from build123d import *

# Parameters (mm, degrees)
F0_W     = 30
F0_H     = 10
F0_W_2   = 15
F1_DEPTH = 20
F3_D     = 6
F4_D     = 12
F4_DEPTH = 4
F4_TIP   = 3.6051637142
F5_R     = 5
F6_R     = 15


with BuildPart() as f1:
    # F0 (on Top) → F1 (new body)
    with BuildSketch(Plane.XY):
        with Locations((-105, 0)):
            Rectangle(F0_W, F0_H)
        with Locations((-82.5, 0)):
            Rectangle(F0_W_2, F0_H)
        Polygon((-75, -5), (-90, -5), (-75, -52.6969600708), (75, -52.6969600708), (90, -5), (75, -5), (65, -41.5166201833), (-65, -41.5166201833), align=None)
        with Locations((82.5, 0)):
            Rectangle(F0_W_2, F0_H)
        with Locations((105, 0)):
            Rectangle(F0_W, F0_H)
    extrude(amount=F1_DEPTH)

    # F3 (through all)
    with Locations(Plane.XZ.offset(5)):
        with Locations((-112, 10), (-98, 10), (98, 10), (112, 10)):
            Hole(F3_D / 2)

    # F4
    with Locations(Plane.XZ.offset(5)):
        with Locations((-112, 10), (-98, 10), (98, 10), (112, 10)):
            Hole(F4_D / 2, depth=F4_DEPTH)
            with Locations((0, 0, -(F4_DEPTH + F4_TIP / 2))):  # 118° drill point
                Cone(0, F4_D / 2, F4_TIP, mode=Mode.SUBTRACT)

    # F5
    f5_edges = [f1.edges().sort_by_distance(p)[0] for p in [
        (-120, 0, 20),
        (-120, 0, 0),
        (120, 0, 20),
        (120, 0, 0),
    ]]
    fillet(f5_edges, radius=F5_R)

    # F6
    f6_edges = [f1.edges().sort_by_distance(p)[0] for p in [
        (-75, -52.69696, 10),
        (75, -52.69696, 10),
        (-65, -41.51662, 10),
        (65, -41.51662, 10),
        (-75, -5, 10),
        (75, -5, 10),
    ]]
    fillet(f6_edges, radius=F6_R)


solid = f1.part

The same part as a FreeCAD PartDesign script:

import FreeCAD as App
import Part
import Sketcher
from FreeCAD import Vector


def edges_at(feature, points):
    """Names of the edges that pass closest to the given points."""
    edges = feature.Shape.Edges
    near = lambda p: min(range(len(edges)), key=lambda i: edges[i].distToShape(Part.Vertex(*p))[0])
    return sorted({f"Edge{near(p) + 1}" for p in points})

doc = App.newDocument("Part")
body = doc.addObject("PartDesign::Body", "Body")

sketch1 = body.newObject("Sketcher::SketchObject", "Sketch")
sketch1.AttachmentSupport = (doc.getObject("XY_Plane"), [""])
sketch1.MapMode = "FlatFace"
sketch1.addGeometry([
    Part.LineSegment(Vector(-120, 5, 0), Vector(-120, -5, 0)),
    Part.LineSegment(Vector(-120, -5, 0), Vector(-90, -5, 0)),
    Part.LineSegment(Vector(-90, -5, 0), Vector(-75, -53, 0)),
    Part.LineSegment(Vector(-75, -53, 0), Vector(75, -53, 0)),
    Part.LineSegment(Vector(75, -53, 0), Vector(90, -5, 0)),
    Part.LineSegment(Vector(90, -5, 0), Vector(120, -5, 0)),
    Part.LineSegment(Vector(120, -5, 0), Vector(120, 5, 0)),
    Part.LineSegment(Vector(120, 5, 0), Vector(75, 5, 0)),
    Part.LineSegment(Vector(75, 5, 0), Vector(75, -5, 0)),
    Part.LineSegment(Vector(75, -5, 0), Vector(65, -42, 0)),
    Part.LineSegment(Vector(65, -42, 0), Vector(-65, -42, 0)),
    Part.LineSegment(Vector(-65, -42, 0), Vector(-75, -5, 0)),
    Part.LineSegment(Vector(-75, -5, 0), Vector(-75, 5, 0)),
    Part.LineSegment(Vector(-75, 5, 0), Vector(-120, 5, 0)),
], False)
sketch1.addConstraint([
    Sketcher.Constraint("Coincident", 0, 2, 1, 1),
    Sketcher.Constraint("Coincident", 1, 2, 2, 1),
    Sketcher.Constraint("Coincident", 2, 2, 3, 1),
    Sketcher.Constraint("Coincident", 3, 2, 4, 1),
    Sketcher.Constraint("Coincident", 4, 2, 5, 1),
    Sketcher.Constraint("Coincident", 5, 2, 6, 1),
    Sketcher.Constraint("Coincident", 6, 2, 7, 1),
    Sketcher.Constraint("Coincident", 7, 2, 8, 1),
    Sketcher.Constraint("Coincident", 8, 2, 9, 1),
    Sketcher.Constraint("Coincident", 9, 2, 10, 1),
    Sketcher.Constraint("Coincident", 10, 2, 11, 1),
    Sketcher.Constraint("Coincident", 11, 2, 12, 1),
    Sketcher.Constraint("Coincident", 12, 2, 13, 1),
    Sketcher.Constraint("Coincident", 13, 2, 0, 1),
    Sketcher.Constraint("Vertical", 0),
    Sketcher.Constraint("Horizontal", 1),
    Sketcher.Constraint("Horizontal", 3),
    Sketcher.Constraint("Horizontal", 5),
    Sketcher.Constraint("Vertical", 6),
    Sketcher.Constraint("Horizontal", 7),
    Sketcher.Constraint("Vertical", 8),
    Sketcher.Constraint("Horizontal", 10),
    Sketcher.Constraint("Vertical", 12),
    Sketcher.Constraint("Horizontal", 13),
    Sketcher.Constraint("Symmetric", 0, 2, 6, 2, -1, 1),
    Sketcher.Constraint("Symmetric", 7, 2, 11, 2, -1, 1),
    Sketcher.Constraint("Symmetric", 1, 2, 4, 2, -2),
    Sketcher.Constraint("Horizontal", 5, 2, 8, 2),
    Sketcher.Constraint("Horizontal", 7, 2, 12, 2),
    Sketcher.Constraint("Vertical", 3, 2, 7, 2),
    Sketcher.Constraint("Vertical", 2, 2, 11, 2),
    Sketcher.Constraint("Equal", 9, 11),
    Sketcher.Constraint("DistanceX", 1, 1, 1, 2, 30.0),
    Sketcher.Constraint("DistanceX", 3, 1, 3, 2, 150.0),
    Sketcher.Constraint("DistanceX", 7, 2, 7, 1, 45.0),
    Sketcher.Constraint("DistanceX", 10, 2, 10, 1, 130.0),
    Sketcher.Constraint("DistanceY", 0, 2, 0, 1, 10.0),
    Sketcher.Constraint("Distance", 2, 50.0),
    Sketcher.Constraint("Distance", 9, 37.861109),
])
pad1 = body.newObject("PartDesign::Pad", "Pad")
pad1.Profile = sketch1
pad1.Length = 20

sketch2 = body.newObject("Sketcher::SketchObject", "Sketch001")
sketch2.AttachmentSupport = (doc.getObject("XZ_Plane"), [""])
sketch2.MapMode = "FlatFace"
sketch2.AttachmentOffset = App.Placement(Vector(0, 0, 5), App.Rotation())
sketch2.addGeometry([
    Part.Circle(Vector(-112, 10, 0), Vector(0, 0, 1), 3),
    Part.Circle(Vector(-98, 10, 0), Vector(0, 0, 1), 3),
    Part.Circle(Vector(98, 10, 0), Vector(0, 0, 1), 3),
    Part.Circle(Vector(112, 10, 0), Vector(0, 0, 1), 3),
], False)
sketch2.addConstraint([
    Sketcher.Constraint("Equal", 0, 1),
    Sketcher.Constraint("Equal", 1, 2),
    Sketcher.Constraint("Equal", 2, 3),
    Sketcher.Constraint("Symmetric", 1, 3, 2, 3, -2),
    Sketcher.Constraint("Symmetric", 0, 3, 3, 3, -2),
    Sketcher.Constraint("Horizontal", 0, 3, 1, 3),
    Sketcher.Constraint("Diameter", 0, 6.0),
    Sketcher.Constraint("DistanceX", 0, 3, -1, 1, 112.0),
    Sketcher.Constraint("DistanceY", -1, 1, 0, 3, 10.0),
    Sketcher.Constraint("DistanceX", 1, 3, -1, 1, 98.0),
])
doc.recompute()
hole = body.newObject("PartDesign::Hole", "Hole")
hole.Profile = sketch2
hole.ThreadType = "None"
hole.Diameter = 6
hole.DepthType = "ThroughAll"

sketch3 = body.newObject("Sketcher::SketchObject", "Sketch002")
sketch3.AttachmentSupport = (doc.getObject("XZ_Plane"), [""])
sketch3.MapMode = "FlatFace"
sketch3.AttachmentOffset = App.Placement(Vector(0, 0, 5), App.Rotation())
sketch3.addGeometry([
    Part.Circle(Vector(-112, 10, 0), Vector(0, 0, 1), 6),
    Part.Circle(Vector(-98, 10, 0), Vector(0, 0, 1), 6),
    Part.Circle(Vector(98, 10, 0), Vector(0, 0, 1), 6),
    Part.Circle(Vector(112, 10, 0), Vector(0, 0, 1), 6),
], False)
sketch3.addConstraint([
    Sketcher.Constraint("Equal", 0, 1),
    Sketcher.Constraint("Equal", 1, 2),
    Sketcher.Constraint("Equal", 2, 3),
    Sketcher.Constraint("Symmetric", 1, 3, 2, 3, -2),
    Sketcher.Constraint("Symmetric", 0, 3, 3, 3, -2),
    Sketcher.Constraint("Horizontal", 0, 3, 1, 3),
    Sketcher.Constraint("Diameter", 0, 12.0),
    Sketcher.Constraint("DistanceX", 0, 3, -1, 1, 112.0),
    Sketcher.Constraint("DistanceY", -1, 1, 0, 3, 10.0),
    Sketcher.Constraint("DistanceX", 1, 3, -1, 1, 98.0),
])
doc.recompute()
hole2 = body.newObject("PartDesign::Hole", "Hole001")
hole2.Profile = sketch3
hole2.ThreadType = "None"
hole2.Diameter = 12
hole2.DepthType = "Dimension"
hole2.Depth = 4
hole2.DrillPoint = "Angled"
hole2.DrillPointAngle = 118
doc.recompute()

fillet = body.newObject("PartDesign::Fillet", "Fillet")
fillet.Base = (hole2, edges_at(hole2, [
    (-120, 0, 20),
    (-120, 0, 0),
    (120, 0, 20),
    (120, 0, 0),
]))
fillet.Radius = 5
doc.recompute()

fillet2 = body.newObject("PartDesign::Fillet", "Fillet001")
fillet2.Base = (fillet, edges_at(fillet, [
    (-75, -52.697, 10),
    (75, -52.697, 10),
    (-65, -41.517, 10),
    (65, -41.517, 10),
    (-75, -5, 10),
    (75, -5, 10),
]))
fillet2.Radius = 15

doc.recompute()
